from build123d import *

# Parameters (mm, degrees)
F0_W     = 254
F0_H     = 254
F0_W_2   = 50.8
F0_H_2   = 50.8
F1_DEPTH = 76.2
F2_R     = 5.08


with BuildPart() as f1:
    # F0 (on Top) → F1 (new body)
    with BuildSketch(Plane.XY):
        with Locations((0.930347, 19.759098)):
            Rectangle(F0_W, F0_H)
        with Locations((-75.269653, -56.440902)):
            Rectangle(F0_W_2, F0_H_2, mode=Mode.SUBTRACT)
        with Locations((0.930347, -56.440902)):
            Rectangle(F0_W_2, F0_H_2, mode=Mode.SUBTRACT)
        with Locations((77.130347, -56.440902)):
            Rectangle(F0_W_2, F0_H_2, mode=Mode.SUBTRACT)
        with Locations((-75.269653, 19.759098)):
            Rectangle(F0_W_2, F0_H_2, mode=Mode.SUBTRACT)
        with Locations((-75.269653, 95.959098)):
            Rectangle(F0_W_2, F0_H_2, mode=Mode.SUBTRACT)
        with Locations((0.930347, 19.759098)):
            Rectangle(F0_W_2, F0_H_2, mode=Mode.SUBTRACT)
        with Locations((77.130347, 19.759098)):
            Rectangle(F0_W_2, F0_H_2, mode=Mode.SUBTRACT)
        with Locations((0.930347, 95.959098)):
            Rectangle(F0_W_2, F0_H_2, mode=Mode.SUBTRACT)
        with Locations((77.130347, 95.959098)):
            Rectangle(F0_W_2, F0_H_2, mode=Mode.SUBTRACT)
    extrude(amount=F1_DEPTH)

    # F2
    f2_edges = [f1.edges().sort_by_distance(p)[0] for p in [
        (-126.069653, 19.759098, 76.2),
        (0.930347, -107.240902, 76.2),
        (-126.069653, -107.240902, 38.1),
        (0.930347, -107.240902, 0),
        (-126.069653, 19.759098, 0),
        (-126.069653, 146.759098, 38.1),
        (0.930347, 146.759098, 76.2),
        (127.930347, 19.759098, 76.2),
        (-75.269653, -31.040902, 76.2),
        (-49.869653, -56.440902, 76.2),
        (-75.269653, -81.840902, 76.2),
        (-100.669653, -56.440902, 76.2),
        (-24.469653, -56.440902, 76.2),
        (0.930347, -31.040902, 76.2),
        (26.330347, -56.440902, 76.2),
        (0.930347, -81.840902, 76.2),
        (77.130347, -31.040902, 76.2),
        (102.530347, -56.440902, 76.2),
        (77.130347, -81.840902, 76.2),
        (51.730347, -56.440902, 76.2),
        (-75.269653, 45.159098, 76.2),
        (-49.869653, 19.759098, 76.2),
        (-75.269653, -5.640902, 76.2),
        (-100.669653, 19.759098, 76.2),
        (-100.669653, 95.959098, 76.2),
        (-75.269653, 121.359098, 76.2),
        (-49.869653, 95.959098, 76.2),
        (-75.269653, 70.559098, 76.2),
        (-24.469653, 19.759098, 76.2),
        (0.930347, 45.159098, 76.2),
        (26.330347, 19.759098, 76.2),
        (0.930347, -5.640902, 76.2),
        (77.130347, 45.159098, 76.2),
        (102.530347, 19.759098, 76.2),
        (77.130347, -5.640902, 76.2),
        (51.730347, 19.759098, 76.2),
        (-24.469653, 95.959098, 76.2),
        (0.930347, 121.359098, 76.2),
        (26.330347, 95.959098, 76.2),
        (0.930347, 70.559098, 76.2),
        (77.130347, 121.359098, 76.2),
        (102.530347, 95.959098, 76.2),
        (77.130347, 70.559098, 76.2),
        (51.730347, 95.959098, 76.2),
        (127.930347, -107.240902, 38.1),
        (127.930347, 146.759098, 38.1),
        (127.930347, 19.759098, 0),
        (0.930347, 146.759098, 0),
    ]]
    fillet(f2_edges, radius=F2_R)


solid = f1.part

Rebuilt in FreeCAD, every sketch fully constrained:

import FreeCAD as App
import Part
import Sketcher

V = App.Vector
Q = App.Units.Quantity


def edges_at(feature, points):
    """Names of the edges that pass closest to the given points."""
    edges = feature.Shape.Edges
    near = lambda p: min(range(len(edges)), key=lambda i: edges[i].distToShape(Part.Vertex(*p))[0])
    return sorted({f"Edge{near(p) + 1}" for p in points})


def add_polygon(sketch, points):
    """Adds a closed chain of lines whose ends are joined by coincident constraints."""
    first, n = sketch.GeometryCount, len(points)
    for a, b in zip(points, points[1:] + points[:1]):
        sketch.addGeometry(Part.LineSegment(App.Vector(*a, 0), App.Vector(*b, 0)), False)
    for i in range(n):
        sketch.addConstraint(Sketcher.Constraint("Coincident", first + i, 2, first + (i + 1) % n, 1))

doc = App.newDocument("Part")
body = doc.addObject("PartDesign::Body", "Body")

# Sketch on XY plane
sketch1 = doc.addObject("Sketcher::SketchObject", "Sketch")
body.addObject(sketch1)
sketch1.AttachmentSupport = (doc.XY_Plane, [""])
sketch1.MapMode = "FlatFace"
add_polygon(sketch1, [(-126, 147), (-126, -107), (128, -107), (128, 147)])  # lines 0-3
add_polygon(sketch1, [(-50, -82), (-101, -82), (-101, -31), (-50, -31)])  # lines 4-7
add_polygon(sketch1, [(26, -82), (-24, -82), (-24, -31), (26, -31)])  # lines 8-11
add_polygon(sketch1, [(-50, -6), (-101, -6), (-101, 45), (-50, 45)])  # lines 12-15
add_polygon(sketch1, [(26, -6), (-24, -6), (-24, 45), (26, 45)])  # lines 16-19
add_polygon(sketch1, [(103, -82), (52, -82), (52, -31), (103, -31)])  # lines 20-23
add_polygon(sketch1, [(103, -6), (52, -6), (52, 45), (103, 45)])  # lines 24-27
add_polygon(sketch1, [(-50, 71), (-101, 71), (-101, 121), (-50, 121)])  # lines 28-31
add_polygon(sketch1, [(26, 71), (-24, 71), (-24, 121), (26, 121)])  # lines 32-35
add_polygon(sketch1, [(103, 71), (52, 71), (52, 121), (103, 121)])  # lines 36-39
sketch1.addConstraint([
    Sketcher.Constraint("Vertical", 0),
    Sketcher.Constraint("Horizontal", 1),
    Sketcher.Constraint("Vertical", 2),
    Sketcher.Constraint("Horizontal", 3),
    Sketcher.Constraint("Horizontal", 4),
    Sketcher.Constraint("Vertical", 5),
    Sketcher.Constraint("Horizontal", 6),
    Sketcher.Constraint("Vertical", 7),
    Sketcher.Constraint("Horizontal", 8),
    Sketcher.Constraint("Vertical", 9),
    Sketcher.Constraint("Horizontal", 10),
    Sketcher.Constraint("Vertical", 11),
    Sketcher.Constraint("Horizontal", 12),
    Sketcher.Constraint("Vertical", 13),
    Sketcher.Constraint("Horizontal", 14),
    Sketcher.Constraint("Vertical", 15),
    Sketcher.Constraint("Horizontal", 16),
    Sketcher.Constraint("Vertical", 17),
    Sketcher.Constraint("Horizontal", 18),
    Sketcher.Constraint("Vertical", 19),
    Sketcher.Constraint("Horizontal", 20),
    Sketcher.Constraint("Vertical", 21),
    Sketcher.Constraint("Horizontal", 22),
    Sketcher.Constraint("Vertical", 23),
    Sketcher.Constraint("Horizontal", 24),
    Sketcher.Constraint("Vertical", 25),
    Sketcher.Constraint("Horizontal", 26),
    Sketcher.Constraint("Vertical", 27),
    Sketcher.Constraint("Horizontal", 28),
    Sketcher.Constraint("Vertical", 29),
    Sketcher.Constraint("Horizontal", 30),
    Sketcher.Constraint("Vertical", 31),
    Sketcher.Constraint("Horizontal", 32),
    Sketcher.Constraint("Vertical", 33),
    Sketcher.Constraint("Horizontal", 34),
    Sketcher.Constraint("Vertical", 35),
    Sketcher.Constraint("Horizontal", 36),
    Sketcher.Constraint("Vertical", 37),
    Sketcher.Constraint("Horizontal", 38),
    Sketcher.Constraint("Vertical", 39),
    Sketcher.Constraint("Horizontal", 7, 2, 8, 2),
    Sketcher.Constraint("Horizontal", 6, 2, 9, 2),
    Sketcher.Constraint("Horizontal", 15, 2, 16, 2),
    Sketcher.Constraint("Horizontal", 14, 2, 17, 2),
    Sketcher.Constraint("Horizontal", 11, 2, 20, 2),
    Sketcher.Constraint("Horizontal", 10, 2, 21, 2),
    Sketcher.Constraint("Horizontal", 19, 2, 24, 2),
    Sketcher.Constraint("Horizontal", 18, 2, 25, 2),
    Sketcher.Constraint("Horizontal", 31, 2, 32, 2),
    Sketcher.Constraint("Horizontal", 30, 2, 33, 2),
    Sketcher.Constraint("Horizontal", 35, 2, 36, 2),
    Sketcher.Constraint("Horizontal", 34, 2, 37, 2),
    Sketcher.Constraint("Vertical", 5, 2, 12, 2),
    Sketcher.Constraint("Vertical", 7, 2, 14, 2),
    Sketcher.Constraint("Vertical", 9, 2, 16, 2),
    Sketcher.Constraint("Vertical", 11, 2, 18, 2),
    Sketcher.Constraint("Vertical", 21, 2, 24, 2),
    Sketcher.Constraint("Vertical", 23, 2, 26, 2),
    Sketcher.Constraint("Vertical", 13, 2, 28, 2),
    Sketcher.Constraint("Vertical", 15, 2, 30, 2),
    Sketcher.Constraint("Vertical", 17, 2, 32, 2),
    Sketcher.Constraint("Vertical", 19, 2, 34, 2),
    Sketcher.Constraint("Vertical", 25, 2, 36, 2),
    Sketcher.Constraint("Vertical", 27, 2, 38, 2),
    Sketcher.Constraint("Equal", 6, 8),
    Sketcher.Constraint("Equal", 18, 20),
    Sketcher.Constraint("Equal", 3, 0),
    Sketcher.Constraint("Equal", 38, 5),
    Sketcher.Constraint("Equal", 11, 13),
    Sketcher.Constraint("Equal", 27, 29),
    Sketcher.Constraint("DistanceX", 1, 1, 1, 2, Q("10 in")),
    Sketcher.Constraint("DistanceX", 4, 2, 4, 1, Q("2 in")),
    Sketcher.Constraint("DistanceX", 0, 2, 4, 2, Q("1 in")),
    Sketcher.Constraint("DistanceY", 0, 2, 4, 2, Q("1 in")),
    Sketcher.Constraint("DistanceX", 7, 2, 8, 2, Q("1 in")),
    Sketcher.Constraint("DistanceY", 5, 2, 12, 2, Q("1 in")),
    Sketcher.Constraint("DistanceX", 11, 2, 20, 2, Q("1 in")),
    Sketcher.Constraint("DistanceY", 13, 2, 28, 2, Q("1 in")),
    Sketcher.Constraint("DistanceY", -1, 1, 2, 2, 146.759098),
    Sketcher.Constraint("DistanceX", 0, 2, -1, 1, 126.069653),
])
pad1 = doc.addObject("PartDesign::Pad", "Pad")
body.addObject(pad1)
pad1.Profile = sketch1
pad1.Length = Q("3 in")
doc.recompute()

fillet = doc.addObject("PartDesign::Fillet", "Fillet")
body.addObject(fillet)
fillet.Base = (pad1, edges_at(pad1, [
    (-126.07, 19.759, 76.2),
    (0.93, -107.241, 76.2),
    (-126.07, -107.241, 38.1),
    (0.93, -107.241, 0),
    (-126.07, 19.759, 0),
    (-126.07, 146.759, 38.1),
    (0.93, 146.759, 76.2),
    (127.93, 19.759, 76.2),
    (-75.27, -31.041, 76.2),
    (-49.87, -56.441, 76.2),
    (-75.27, -81.841, 76.2),
    (-100.67, -56.441, 76.2),
    (-24.47, -56.441, 76.2),
    (0.93, -31.041, 76.2),
    (26.33, -56.441, 76.2),
    (0.93, -81.841, 76.2),
    (77.13, -31.041, 76.2),
    (102.53, -56.441, 76.2),
    (77.13, -81.841, 76.2),
    (51.73, -56.441, 76.2),
    (-75.27, 45.159, 76.2),
    (-49.87, 19.759, 76.2),
    (-75.27, -5.641, 76.2),
    (-100.67, 19.759, 76.2),
    (-100.67, 95.959, 76.2),
    (-75.27, 121.359, 76.2),
    (-49.87, 95.959, 76.2),
    (-75.27, 70.559, 76.2),
    (-24.47, 19.759, 76.2),
    (0.93, 45.159, 76.2),
    (26.33, 19.759, 76.2),
    (0.93, -5.641, 76.2),
    (77.13, 45.159, 76.2),
    (102.53, 19.759, 76.2),
    (77.13, -5.641, 76.2),
    (51.73, 19.759, 76.2),
    (-24.47, 95.959, 76.2),
    (0.93, 121.359, 76.2),
    (26.33, 95.959, 76.2),
    (0.93, 70.559, 76.2),
    (77.13, 121.359, 76.2),
    (102.53, 95.959, 76.2),
    (77.13, 70.559, 76.2),
    (51.73, 95.959, 76.2),
    (127.93, -107.241, 38.1),
    (127.93, 146.759, 38.1),
    (127.93, 19.759, 0),
    (0.93, 146.759, 0),
]))
fillet.Radius = Q("0.2 in")

doc.recompute()
